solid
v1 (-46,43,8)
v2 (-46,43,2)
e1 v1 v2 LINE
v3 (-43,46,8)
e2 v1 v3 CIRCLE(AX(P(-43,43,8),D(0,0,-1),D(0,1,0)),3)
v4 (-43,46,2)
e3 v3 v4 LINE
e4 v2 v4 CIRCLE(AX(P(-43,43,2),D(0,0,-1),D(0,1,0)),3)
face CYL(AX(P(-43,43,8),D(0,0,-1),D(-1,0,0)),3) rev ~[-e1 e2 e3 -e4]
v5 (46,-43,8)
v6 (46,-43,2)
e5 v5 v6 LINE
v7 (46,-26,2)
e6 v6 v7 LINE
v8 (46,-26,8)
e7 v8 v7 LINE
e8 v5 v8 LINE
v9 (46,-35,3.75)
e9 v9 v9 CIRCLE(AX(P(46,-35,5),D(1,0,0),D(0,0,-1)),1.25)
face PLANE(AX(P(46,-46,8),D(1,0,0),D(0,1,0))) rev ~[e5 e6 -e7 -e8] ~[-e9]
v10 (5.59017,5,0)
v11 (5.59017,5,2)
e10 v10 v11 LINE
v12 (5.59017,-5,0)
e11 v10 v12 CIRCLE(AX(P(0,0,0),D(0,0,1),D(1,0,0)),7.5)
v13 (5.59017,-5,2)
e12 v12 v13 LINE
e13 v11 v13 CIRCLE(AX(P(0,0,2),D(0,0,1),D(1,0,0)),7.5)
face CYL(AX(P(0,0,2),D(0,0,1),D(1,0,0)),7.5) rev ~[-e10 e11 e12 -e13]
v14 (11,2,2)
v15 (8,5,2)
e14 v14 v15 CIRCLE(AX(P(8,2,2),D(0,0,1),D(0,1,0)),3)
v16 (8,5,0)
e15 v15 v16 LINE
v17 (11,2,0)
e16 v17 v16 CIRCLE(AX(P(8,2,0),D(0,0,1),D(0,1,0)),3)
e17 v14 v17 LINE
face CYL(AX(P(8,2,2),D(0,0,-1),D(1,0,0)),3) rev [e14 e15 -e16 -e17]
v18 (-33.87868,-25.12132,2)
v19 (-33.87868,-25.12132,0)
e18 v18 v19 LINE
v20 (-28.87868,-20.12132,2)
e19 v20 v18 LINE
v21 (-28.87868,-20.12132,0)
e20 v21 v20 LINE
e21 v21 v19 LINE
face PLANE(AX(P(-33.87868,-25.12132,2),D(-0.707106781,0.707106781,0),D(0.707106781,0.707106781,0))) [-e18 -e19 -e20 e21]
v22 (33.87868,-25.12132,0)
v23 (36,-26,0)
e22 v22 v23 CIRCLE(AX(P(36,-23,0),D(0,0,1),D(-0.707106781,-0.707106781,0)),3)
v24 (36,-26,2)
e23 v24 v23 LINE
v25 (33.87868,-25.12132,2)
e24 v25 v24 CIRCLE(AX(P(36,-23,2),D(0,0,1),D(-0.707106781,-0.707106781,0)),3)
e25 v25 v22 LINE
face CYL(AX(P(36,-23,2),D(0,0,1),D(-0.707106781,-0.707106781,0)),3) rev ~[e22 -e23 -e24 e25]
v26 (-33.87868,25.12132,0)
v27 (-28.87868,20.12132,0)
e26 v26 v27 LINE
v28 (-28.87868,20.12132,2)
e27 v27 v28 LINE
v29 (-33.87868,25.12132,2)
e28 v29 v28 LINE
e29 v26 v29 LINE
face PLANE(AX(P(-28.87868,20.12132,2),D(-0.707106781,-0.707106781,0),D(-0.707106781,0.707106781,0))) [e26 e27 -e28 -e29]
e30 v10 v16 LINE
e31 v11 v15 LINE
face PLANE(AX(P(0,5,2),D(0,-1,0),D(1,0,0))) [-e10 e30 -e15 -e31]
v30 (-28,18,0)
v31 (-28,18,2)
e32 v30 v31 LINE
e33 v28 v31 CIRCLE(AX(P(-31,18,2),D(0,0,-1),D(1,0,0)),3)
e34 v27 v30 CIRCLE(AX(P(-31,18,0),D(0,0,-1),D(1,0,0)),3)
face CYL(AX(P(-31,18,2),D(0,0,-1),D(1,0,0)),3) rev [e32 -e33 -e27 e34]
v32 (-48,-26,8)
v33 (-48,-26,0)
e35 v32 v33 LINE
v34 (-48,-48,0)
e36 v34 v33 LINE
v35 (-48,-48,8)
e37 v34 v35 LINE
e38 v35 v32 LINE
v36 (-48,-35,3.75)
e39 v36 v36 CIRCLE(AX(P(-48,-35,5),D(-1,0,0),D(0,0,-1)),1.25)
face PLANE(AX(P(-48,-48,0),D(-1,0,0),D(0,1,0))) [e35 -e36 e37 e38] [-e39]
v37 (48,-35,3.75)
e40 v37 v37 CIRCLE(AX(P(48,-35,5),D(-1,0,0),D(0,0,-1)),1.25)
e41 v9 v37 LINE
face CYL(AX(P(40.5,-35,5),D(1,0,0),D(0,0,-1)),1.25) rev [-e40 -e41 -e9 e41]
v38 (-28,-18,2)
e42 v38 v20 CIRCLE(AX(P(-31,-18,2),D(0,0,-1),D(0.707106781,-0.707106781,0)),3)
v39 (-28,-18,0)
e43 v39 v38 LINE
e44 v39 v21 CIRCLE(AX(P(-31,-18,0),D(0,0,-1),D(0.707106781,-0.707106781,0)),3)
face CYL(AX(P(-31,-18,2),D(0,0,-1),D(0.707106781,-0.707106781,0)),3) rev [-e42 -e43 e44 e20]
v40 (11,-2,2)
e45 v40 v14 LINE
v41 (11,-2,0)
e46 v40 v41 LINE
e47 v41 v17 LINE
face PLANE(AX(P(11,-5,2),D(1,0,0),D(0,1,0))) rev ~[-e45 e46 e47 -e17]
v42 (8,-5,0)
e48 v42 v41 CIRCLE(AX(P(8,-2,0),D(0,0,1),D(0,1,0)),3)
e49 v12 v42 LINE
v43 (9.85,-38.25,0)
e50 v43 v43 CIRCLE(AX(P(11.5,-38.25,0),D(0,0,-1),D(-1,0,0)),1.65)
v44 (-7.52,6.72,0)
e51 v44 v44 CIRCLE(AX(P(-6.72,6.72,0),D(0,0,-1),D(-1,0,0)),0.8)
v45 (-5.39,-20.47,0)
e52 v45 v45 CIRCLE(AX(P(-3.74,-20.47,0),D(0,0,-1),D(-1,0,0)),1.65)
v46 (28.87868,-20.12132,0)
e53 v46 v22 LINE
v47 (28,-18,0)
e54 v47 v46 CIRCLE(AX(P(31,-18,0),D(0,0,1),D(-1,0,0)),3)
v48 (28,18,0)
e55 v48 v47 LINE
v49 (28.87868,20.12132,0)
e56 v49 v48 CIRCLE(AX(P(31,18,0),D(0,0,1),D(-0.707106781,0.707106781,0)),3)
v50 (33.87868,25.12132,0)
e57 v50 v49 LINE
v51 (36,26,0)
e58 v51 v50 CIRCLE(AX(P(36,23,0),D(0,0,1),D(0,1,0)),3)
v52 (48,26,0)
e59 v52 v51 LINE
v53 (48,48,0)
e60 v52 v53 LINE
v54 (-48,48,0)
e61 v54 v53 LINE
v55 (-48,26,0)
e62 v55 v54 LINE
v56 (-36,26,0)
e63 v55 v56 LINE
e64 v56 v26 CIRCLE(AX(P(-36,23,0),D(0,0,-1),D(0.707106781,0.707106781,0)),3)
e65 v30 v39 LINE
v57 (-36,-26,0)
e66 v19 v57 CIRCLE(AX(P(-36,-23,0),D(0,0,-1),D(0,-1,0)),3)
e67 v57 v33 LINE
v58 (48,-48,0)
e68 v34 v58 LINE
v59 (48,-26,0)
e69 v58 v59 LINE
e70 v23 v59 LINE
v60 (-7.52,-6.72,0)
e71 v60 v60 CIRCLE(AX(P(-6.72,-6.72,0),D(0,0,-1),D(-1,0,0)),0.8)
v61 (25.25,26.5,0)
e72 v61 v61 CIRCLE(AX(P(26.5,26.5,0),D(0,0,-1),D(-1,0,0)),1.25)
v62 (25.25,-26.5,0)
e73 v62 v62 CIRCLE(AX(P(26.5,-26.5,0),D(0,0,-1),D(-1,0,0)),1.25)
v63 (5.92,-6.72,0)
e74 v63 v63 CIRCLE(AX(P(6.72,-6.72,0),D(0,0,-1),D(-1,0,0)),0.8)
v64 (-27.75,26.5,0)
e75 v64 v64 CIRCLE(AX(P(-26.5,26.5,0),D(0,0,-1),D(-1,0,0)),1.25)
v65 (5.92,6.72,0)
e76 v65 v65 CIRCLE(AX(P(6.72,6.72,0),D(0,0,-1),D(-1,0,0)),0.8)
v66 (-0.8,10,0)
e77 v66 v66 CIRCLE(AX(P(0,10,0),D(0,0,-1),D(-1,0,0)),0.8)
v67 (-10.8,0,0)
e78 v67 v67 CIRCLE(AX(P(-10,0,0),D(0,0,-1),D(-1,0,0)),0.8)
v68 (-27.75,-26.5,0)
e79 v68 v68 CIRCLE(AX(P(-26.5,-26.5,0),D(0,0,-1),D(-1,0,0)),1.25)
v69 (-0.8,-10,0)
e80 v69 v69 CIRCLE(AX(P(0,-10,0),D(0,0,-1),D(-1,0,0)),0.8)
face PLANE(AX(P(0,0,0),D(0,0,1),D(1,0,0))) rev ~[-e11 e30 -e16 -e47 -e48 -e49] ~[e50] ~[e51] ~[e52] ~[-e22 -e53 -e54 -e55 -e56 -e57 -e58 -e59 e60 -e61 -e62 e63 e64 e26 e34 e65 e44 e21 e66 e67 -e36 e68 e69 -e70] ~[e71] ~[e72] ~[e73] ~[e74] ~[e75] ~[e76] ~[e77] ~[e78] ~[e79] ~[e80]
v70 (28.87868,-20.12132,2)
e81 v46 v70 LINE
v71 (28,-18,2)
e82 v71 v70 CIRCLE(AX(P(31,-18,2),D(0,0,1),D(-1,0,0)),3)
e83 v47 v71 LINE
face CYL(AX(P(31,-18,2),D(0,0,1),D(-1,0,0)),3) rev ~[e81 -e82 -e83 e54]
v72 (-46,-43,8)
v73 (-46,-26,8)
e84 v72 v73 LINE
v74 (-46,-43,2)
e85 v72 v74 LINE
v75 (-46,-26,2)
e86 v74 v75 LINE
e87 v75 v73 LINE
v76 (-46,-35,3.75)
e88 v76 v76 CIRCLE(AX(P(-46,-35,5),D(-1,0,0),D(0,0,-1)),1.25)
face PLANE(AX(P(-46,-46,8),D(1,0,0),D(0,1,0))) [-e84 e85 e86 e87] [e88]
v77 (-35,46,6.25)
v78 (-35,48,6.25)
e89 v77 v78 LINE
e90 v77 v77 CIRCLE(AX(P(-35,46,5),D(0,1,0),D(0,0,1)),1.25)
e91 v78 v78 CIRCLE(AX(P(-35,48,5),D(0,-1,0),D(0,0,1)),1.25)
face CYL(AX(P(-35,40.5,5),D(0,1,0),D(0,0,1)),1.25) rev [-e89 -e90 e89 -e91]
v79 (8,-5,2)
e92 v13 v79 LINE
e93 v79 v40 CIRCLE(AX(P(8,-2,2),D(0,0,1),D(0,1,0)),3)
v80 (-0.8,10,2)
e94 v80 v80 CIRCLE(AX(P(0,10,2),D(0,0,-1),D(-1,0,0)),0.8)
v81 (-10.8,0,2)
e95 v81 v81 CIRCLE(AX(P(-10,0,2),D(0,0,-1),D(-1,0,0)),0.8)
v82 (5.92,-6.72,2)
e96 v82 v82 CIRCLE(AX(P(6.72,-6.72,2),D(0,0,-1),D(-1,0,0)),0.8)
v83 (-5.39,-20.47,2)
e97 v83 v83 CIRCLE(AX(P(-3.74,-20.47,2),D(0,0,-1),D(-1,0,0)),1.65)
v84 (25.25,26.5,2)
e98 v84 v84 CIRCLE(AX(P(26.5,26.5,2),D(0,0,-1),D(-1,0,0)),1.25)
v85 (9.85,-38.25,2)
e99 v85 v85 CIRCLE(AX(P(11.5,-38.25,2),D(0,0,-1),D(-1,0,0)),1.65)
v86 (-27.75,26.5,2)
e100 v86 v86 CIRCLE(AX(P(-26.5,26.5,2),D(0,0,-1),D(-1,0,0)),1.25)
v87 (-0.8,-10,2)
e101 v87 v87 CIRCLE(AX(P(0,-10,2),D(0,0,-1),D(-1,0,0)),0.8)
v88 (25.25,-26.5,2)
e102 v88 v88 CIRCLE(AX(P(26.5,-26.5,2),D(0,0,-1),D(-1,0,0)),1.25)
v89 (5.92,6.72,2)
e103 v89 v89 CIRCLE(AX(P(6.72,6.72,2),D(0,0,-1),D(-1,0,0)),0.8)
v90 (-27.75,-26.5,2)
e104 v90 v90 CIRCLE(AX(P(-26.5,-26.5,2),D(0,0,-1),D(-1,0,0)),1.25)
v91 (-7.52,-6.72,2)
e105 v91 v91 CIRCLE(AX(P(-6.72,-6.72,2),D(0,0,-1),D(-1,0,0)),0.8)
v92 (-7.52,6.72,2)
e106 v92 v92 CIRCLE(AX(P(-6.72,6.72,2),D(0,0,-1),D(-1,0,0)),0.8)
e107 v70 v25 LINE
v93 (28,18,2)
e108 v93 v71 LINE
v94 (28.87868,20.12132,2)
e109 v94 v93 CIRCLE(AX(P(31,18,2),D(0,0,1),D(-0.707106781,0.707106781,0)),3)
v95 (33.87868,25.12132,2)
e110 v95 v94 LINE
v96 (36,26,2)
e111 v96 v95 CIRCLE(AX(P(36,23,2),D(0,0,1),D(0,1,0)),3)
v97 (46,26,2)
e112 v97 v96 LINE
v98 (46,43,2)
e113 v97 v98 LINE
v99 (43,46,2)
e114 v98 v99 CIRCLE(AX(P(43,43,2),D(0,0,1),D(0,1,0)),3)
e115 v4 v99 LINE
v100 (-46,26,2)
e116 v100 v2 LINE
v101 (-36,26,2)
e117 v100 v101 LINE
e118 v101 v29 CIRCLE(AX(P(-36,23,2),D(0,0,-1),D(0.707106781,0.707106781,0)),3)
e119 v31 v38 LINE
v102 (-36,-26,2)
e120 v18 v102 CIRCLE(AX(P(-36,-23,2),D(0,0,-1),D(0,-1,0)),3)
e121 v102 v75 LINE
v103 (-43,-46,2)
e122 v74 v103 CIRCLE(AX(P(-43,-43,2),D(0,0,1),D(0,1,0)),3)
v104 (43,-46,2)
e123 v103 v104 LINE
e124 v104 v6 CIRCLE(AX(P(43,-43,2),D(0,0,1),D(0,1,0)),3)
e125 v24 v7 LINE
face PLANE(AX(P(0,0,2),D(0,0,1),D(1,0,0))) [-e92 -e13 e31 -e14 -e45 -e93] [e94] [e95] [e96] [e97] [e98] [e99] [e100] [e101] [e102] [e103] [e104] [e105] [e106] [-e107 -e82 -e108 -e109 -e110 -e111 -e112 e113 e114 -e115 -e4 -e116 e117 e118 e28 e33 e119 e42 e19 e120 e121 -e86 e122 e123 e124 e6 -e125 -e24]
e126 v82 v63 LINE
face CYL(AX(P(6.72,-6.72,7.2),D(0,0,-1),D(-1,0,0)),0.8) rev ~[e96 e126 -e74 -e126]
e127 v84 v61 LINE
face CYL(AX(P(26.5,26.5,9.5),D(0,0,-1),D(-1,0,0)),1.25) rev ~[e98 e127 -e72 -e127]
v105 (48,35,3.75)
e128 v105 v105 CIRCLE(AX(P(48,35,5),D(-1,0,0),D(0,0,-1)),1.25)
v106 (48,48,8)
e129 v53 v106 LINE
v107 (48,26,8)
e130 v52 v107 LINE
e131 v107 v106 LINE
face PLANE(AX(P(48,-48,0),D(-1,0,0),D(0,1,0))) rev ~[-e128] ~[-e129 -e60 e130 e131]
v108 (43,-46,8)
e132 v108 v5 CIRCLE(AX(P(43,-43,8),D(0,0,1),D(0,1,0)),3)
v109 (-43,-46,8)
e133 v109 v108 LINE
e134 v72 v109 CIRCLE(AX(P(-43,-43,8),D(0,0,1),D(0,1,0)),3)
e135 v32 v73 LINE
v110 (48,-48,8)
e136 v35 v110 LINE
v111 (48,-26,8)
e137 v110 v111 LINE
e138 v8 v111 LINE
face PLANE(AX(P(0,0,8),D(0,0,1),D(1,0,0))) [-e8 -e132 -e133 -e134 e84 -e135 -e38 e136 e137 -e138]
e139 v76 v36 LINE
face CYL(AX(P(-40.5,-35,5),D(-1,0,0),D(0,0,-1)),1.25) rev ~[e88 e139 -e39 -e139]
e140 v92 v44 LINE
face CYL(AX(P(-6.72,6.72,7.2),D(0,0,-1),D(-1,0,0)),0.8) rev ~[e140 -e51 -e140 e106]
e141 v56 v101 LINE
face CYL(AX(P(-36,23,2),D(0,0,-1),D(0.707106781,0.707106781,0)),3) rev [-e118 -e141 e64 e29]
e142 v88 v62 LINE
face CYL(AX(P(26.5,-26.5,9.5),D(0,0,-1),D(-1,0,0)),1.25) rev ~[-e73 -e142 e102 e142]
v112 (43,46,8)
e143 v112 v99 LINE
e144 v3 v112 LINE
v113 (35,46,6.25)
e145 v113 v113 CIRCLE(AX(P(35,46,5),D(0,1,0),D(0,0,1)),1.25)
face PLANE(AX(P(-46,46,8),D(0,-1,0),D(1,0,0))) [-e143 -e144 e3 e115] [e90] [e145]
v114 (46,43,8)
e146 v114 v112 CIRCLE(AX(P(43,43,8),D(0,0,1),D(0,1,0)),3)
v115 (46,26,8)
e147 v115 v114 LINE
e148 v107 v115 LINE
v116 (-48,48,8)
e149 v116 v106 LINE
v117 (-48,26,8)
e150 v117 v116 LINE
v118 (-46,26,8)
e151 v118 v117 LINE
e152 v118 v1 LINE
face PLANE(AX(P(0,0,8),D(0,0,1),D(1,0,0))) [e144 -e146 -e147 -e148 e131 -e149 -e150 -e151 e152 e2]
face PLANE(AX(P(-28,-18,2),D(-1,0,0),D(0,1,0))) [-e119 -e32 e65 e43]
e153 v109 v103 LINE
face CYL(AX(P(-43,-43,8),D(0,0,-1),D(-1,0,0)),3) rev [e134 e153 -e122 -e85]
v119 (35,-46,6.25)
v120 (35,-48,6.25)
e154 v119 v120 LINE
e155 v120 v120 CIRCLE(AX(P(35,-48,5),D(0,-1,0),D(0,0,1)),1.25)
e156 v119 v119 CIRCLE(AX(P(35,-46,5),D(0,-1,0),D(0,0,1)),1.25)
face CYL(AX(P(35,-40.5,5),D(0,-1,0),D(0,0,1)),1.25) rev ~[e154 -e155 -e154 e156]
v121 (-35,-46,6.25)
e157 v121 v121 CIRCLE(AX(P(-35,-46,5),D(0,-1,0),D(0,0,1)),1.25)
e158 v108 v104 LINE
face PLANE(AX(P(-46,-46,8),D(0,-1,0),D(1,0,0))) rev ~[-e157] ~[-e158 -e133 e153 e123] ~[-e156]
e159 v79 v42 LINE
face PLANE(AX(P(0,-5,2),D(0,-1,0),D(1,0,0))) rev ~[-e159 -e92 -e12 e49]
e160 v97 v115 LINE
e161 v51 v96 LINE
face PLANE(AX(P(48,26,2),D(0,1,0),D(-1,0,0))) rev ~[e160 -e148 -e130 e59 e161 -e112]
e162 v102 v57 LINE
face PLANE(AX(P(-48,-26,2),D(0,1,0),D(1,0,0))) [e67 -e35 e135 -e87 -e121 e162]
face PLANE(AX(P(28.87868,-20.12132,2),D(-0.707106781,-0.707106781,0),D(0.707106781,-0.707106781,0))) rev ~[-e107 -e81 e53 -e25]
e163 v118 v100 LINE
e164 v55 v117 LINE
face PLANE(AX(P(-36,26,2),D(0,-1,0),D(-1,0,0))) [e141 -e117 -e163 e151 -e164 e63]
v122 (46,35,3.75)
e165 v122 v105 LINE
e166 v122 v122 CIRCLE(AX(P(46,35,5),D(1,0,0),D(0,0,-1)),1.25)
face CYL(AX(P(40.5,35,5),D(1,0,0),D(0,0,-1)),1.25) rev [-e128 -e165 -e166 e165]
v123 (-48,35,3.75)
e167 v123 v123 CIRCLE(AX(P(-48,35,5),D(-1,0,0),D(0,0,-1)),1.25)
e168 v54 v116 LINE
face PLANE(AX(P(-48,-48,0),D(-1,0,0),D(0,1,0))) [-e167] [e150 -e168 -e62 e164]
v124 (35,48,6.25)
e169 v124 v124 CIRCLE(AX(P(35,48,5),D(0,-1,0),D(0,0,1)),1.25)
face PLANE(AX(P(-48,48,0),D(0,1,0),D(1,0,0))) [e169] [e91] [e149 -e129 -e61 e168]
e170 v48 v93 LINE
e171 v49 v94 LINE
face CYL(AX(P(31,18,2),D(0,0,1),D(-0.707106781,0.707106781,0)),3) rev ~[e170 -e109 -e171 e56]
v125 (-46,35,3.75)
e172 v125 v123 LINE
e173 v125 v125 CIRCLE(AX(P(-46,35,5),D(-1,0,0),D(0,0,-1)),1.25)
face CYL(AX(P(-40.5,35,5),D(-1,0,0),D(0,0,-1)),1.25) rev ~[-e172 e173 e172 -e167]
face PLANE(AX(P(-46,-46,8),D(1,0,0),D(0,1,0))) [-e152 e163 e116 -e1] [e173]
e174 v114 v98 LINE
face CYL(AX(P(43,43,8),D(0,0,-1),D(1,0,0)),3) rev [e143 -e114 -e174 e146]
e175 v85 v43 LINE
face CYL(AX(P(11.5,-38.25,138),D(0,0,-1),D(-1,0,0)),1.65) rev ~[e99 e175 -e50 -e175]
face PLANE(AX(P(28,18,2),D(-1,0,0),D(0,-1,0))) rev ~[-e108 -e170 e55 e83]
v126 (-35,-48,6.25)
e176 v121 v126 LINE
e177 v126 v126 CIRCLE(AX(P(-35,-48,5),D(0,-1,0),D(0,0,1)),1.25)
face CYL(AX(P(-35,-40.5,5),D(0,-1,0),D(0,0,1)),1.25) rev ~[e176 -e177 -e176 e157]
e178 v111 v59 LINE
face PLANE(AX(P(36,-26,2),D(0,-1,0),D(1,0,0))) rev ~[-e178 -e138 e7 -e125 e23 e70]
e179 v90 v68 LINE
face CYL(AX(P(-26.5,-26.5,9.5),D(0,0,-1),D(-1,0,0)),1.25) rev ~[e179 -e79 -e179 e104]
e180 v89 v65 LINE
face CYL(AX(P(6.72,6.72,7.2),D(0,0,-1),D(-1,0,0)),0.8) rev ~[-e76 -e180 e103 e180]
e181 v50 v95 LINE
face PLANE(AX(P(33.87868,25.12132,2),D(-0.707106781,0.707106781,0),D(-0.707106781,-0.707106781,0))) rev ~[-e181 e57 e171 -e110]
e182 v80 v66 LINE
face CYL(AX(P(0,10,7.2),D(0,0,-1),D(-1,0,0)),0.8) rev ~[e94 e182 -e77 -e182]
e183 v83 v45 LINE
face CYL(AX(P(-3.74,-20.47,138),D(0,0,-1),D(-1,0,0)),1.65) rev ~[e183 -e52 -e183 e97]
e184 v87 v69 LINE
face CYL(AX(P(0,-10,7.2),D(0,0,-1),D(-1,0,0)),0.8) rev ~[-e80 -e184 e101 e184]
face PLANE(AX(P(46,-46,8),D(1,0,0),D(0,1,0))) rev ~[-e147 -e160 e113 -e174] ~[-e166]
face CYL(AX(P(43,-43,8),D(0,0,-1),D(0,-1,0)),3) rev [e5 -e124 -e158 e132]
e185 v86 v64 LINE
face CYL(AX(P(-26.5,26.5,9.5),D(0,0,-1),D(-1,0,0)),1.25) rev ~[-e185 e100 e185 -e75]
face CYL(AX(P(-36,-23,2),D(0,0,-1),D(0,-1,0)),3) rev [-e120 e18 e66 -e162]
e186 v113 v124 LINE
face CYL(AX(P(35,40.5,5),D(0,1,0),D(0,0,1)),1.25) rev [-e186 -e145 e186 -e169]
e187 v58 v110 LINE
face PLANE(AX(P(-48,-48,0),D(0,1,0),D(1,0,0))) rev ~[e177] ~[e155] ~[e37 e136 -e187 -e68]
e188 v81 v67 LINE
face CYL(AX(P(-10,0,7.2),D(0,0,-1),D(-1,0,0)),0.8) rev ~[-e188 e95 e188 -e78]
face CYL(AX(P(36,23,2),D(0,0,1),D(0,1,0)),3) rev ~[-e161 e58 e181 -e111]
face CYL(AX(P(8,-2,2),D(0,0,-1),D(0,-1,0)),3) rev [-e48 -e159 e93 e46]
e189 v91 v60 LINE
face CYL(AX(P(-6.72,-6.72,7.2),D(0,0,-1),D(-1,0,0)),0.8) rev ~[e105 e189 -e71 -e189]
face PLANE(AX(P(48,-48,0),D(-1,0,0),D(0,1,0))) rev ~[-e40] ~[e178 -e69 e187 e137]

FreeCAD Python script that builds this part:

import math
import FreeCAD as App
import Part
import Sketcher
from FreeCAD import Vector
Q = App.Units.Quantity


def edges_at(feature, points):
    """Names of the edges that pass closest to the given points."""
    edges = feature.Shape.Edges
    near = lambda p: min(range(len(edges)), key=lambda i: edges[i].distToShape(Part.Vertex(*p))[0])
    return sorted({f"Edge{near(p) + 1}" for p in points})

doc = App.newDocument("Part")
body = doc.addObject("PartDesign::Body", "Body")

sketch1 = doc.addObject("Sketcher::SketchObject", "Sketch")
body.addObject(sketch1)
sketch1.AttachmentSupport = (doc.XY_Plane, [""])
sketch1.MapMode = "FlatFace"
sketch1.addGeometry([
    Part.LineSegment(Vector(-48, 48, 0), Vector(-48, -48, 0)),
    Part.LineSegment(Vector(-48, -48, 0), Vector(48, -48, 0)),
    Part.LineSegment(Vector(48, -48, 0), Vector(48, 48, 0)),
    Part.LineSegment(Vector(48, 48, 0), Vector(-48, 48, 0)),
], False)
sketch1.addConstraint([
    Sketcher.Constraint("Coincident", 0, 2, 1, 1),
    Sketcher.Constraint("Coincident", 1, 2, 2, 1),
    Sketcher.Constraint("Coincident", 2, 2, 3, 1),
    Sketcher.Constraint("Coincident", 3, 2, 0, 1),
    Sketcher.Constraint("Vertical", 0),
    Sketcher.Constraint("Horizontal", 1),
    Sketcher.Constraint("Vertical", 2),
    Sketcher.Constraint("Horizontal", 3),
    Sketcher.Constraint("Symmetric", 0, 2, 2, 2, -1, 1),
    Sketcher.Constraint("Equal", 3, 0),
    Sketcher.Constraint("DistanceX", 1, 1, 1, 2, 96.0),
])
pad1 = doc.addObject("PartDesign::Pad", "Pad")
body.addObject(pad1)
pad1.Profile = sketch1
pad1.Length = 8

sketch2 = doc.addObject("Sketcher::SketchObject", "Sketch001")
body.addObject(sketch2)
sketch2.AttachmentSupport = (doc.XY_Plane, [""])
sketch2.MapMode = "FlatFace"
sketch2.AttachmentOffset = App.Placement(Vector(0, 0, 8), App.Rotation())
sketch2.addGeometry([
    Part.LineSegment(Vector(-46, 46, 0), Vector(-46, -46, 0)),
    Part.LineSegment(Vector(-46, -46, 0), Vector(46, -46, 0)),
    Part.LineSegment(Vector(46, -46, 0), Vector(46, 46, 0)),
    Part.LineSegment(Vector(46, 46, 0), Vector(-46, 46, 0)),
], False)
sketch2.addConstraint([
    Sketcher.Constraint("Coincident", 0, 2, 1, 1),
    Sketcher.Constraint("Coincident", 1, 2, 2, 1),
    Sketcher.Constraint("Coincident", 2, 2, 3, 1),
    Sketcher.Constraint("Coincident", 3, 2, 0, 1),
    Sketcher.Constraint("Vertical", 0),
    Sketcher.Constraint("Horizontal", 1),
    Sketcher.Constraint("Vertical", 2),
    Sketcher.Constraint("Horizontal", 3),
    Sketcher.Constraint("Symmetric", 0, 2, 2, 2, -1, 1),
    Sketcher.Constraint("Equal", 3, 0),
    Sketcher.Constraint("DistanceX", 1, 1, 1, 2, 92.0),
])
pocket1 = doc.addObject("PartDesign::Pocket", "Pocket")
body.addObject(pocket1)
pocket1.Profile = sketch2
pocket1.Length = 6

sketch3 = doc.addObject("Sketcher::SketchObject", "Sketch002")
body.addObject(sketch3)
sketch3.AttachmentSupport = (doc.XY_Plane, [""])
sketch3.MapMode = "FlatFace"
sketch3.AttachmentOffset = App.Placement(Vector(0, 0, 2), App.Rotation())
sketch3.addGeometry([
    Part.LineSegment(Vector(-33.87868, -25.12132, 0), Vector(-28.87868, -20.12132, 0)),
    Part.ArcOfCircle(Part.Circle(Vector(-31, -18, 0), Vector(0, 0, 1), 3), math.radians(-45), math.radians(0)),
    Part.LineSegment(Vector(-28, -18, 0), Vector(-28, 18, 0)),
    Part.ArcOfCircle(Part.Circle(Vector(-31, 18, 0), Vector(0, 0, 1), 3), math.radians(0), math.radians(45)),
    Part.LineSegment(Vector(-28.87868, 20.12132, 0), Vector(-33.87868, 25.12132, 0)),
    Part.ArcOfCircle(Part.Circle(Vector(-36, 23, 0), Vector(0, 0, 1), 3), math.radians(45), math.radians(90)),
    Part.LineSegment(Vector(-36, 26, 0), Vector(-48, 26, 0)),
    Part.LineSegment(Vector(-48, 26, 0), Vector(-48, -26, 0)),
    Part.LineSegment(Vector(-48, -26, 0), Vector(-36, -26, 0)),
    Part.ArcOfCircle(Part.Circle(Vector(-36, -23, 0), Vector(0, 0, 1), 3), math.radians(-90), math.radians(-45)),
    Part.LineSegment(Vector(48, -26, 0), Vector(48, 26, 0)),
    Part.LineSegment(Vector(48, 26, 0), Vector(36, 26, 0)),
    Part.ArcOfCircle(Part.Circle(Vector(36, 23, 0), Vector(0, 0, 1), 3), math.radians(90), math.radians(135)),
    Part.LineSegment(Vector(33.87868, 25.12132, 0), Vector(28.87868, 20.12132, 0)),
    Part.ArcOfCircle(Part.Circle(Vector(31, 18, 0), Vector(0, 0, 1), 3), math.radians(135), math.radians(180)),
    Part.LineSegment(Vector(28, 18, 0), Vector(28, -18, 0)),
    Part.ArcOfCircle(Part.Circle(Vector(31, -18, 0), Vector(0, 0, 1), 3), math.radians(180), math.radians(225)),
    Part.LineSegment(Vector(28.87868, -20.12132, 0), Vector(33.87868, -25.12132, 0)),
    Part.ArcOfCircle(Part.Circle(Vector(36, -23, 0), Vector(0, 0, 1), 3), math.radians(-135), math.radians(-90)),
    Part.LineSegment(Vector(36, -26, 0), Vector(48, -26, 0)),
], False)
sketch3.addConstraint([
    Sketcher.Constraint("Tangent", 0, 2, 1, 1),
    Sketcher.Constraint("Tangent", 1, 2, 2, 1),
    Sketcher.Constraint("Tangent", 2, 2, 3, 1),
    Sketcher.Constraint("Tangent", 3, 2, 4, 1),
    Sketcher.Constraint("Tangent", 4, 2, 5, 1),
    Sketcher.Constraint("Tangent", 5, 2, 6, 1),
    Sketcher.Constraint("Coincident", 6, 2, 7, 1),
    Sketcher.Constraint("Coincident", 7, 2, 8, 1),
    Sketcher.Constraint("Tangent", 8, 2, 9, 1),
    Sketcher.Constraint("Tangent", 9, 2, 0, 1),
    Sketcher.Constraint("Coincident", 10, 2, 11, 1),
    Sketcher.Constraint("Tangent", 11, 2, 12, 1),
    Sketcher.Constraint("Tangent", 12, 2, 13, 1),
    Sketcher.Constraint("Tangent", 13, 2, 14, 1),
    Sketcher.Constraint("Tangent", 14, 2, 15, 1),
    Sketcher.Constraint("Tangent", 15, 2, 16, 1),
    Sketcher.Constraint("Tangent", 16, 2, 17, 1),
    Sketcher.Constraint("Tangent", 17, 2, 18, 1),
    Sketcher.Constraint("Tangent", 18, 2, 19, 1),
    Sketcher.Constraint("Coincident", 19, 2, 10, 1),
    Sketcher.Constraint("Vertical", 2),
    Sketcher.Constraint("Horizontal", 6),
    Sketcher.Constraint("Vertical", 7),
    Sketcher.Constraint("Horizontal", 8),
    Sketcher.Constraint("Vertical", 10),
    Sketcher.Constraint("Horizontal", 11),
    Sketcher.Constraint("Vertical", 15),
    Sketcher.Constraint("Horizontal", 19),
    Sketcher.Constraint("Equal", 1, 3),
    Sketcher.Constraint("Equal", 3, 5),
    Sketcher.Constraint("Equal", 5, 9),
    Sketcher.Constraint("Equal", 9, 12),
    Sketcher.Constraint("Equal", 12, 14),
    Sketcher.Constraint("Equal", 14, 16),
    Sketcher.Constraint("Equal", 16, 18),
    Sketcher.Constraint("Symmetric", 9, 3, 12, 3, -1, 1),
    Sketcher.Constraint("Symmetric", 1, 3, 14, 3, -1, 1),
    Sketcher.Constraint("Symmetric", 5, 3, 18, 3, -1, 1),
    Sketcher.Constraint("Symmetric", 5, 3, 12, 3, -2),
    Sketcher.Constraint("Perpendicular", 0, 4),
    Sketcher.Constraint("Perpendicular", 13, 17),
    Sketcher.Constraint("Horizontal", 3, 3, 14, 3),
    Sketcher.Constraint("Equal", 8, 11),
    Sketcher.Constraint("Radius", 1, 3.0),
    Sketcher.Constraint("DistanceX", 6, 2, 6, 1, 12.0),
    Sketcher.Constraint("DistanceY", 2, 1, 2, 2, 36.0),
    Sketcher.Constraint("DistanceY", 7, 2, 7, 1, 52.0),
    Sketcher.Constraint("DistanceX", 1, 3, -1, 1, 31.0),
])
pocket2 = doc.addObject("PartDesign::Pocket", "Pocket001")
body.addObject(pocket2)
pocket2.Profile = sketch3
pocket2.Length = 12
pocket2.Midplane = True

sketch4 = doc.addObject("Sketcher::SketchObject", "Sketch003")
body.addObject(sketch4)
sketch4.AttachmentSupport = (doc.XY_Plane, [""])
sketch4.MapMode = "FlatFace"
sketch4.AttachmentOffset = App.Placement(Vector(0, 0, 2), App.Rotation())
sketch4.addGeometry(Part.Circle(Vector(0, 0, 0), Vector(0, 0, 1), 7.5), False)
sketch4.addConstraint([
    Sketcher.Constraint("Coincident", 0, 3, -1, 1),
    Sketcher.Constraint("Diameter", 0, 15.0),
])
pocket3 = doc.addObject("PartDesign::Pocket", "Pocket002")
body.addObject(pocket3)
pocket3.Profile = sketch4
pocket3.Length = 6
doc.recompute()

fillet = doc.addObject("PartDesign::Fillet", "Fillet")
body.addObject(fillet)
fillet.Base = (pocket3, edges_at(pocket3, [
    (-46, -46, 5),
    (-46, 46, 5),
    (46, 46, 5),
    (46, -46, 5),
]))
fillet.Radius = 3

sketch5 = doc.addObject("Sketcher::SketchObject", "Sketch004")
body.addObject(sketch5)
sketch5.AttachmentSupport = (doc.XY_Plane, [""])
sketch5.MapMode = "FlatFace"
sketch5.AttachmentOffset = App.Placement(Vector(0, 0, 2), App.Rotation())
sketch5.addGeometry([
    Part.LineSegment(Vector(0, 5, 0), Vector(0, -5, 0)),
    Part.LineSegment(Vector(0, -5, 0), Vector(11, -5, 0)),
    Part.LineSegment(Vector(11, -5, 0), Vector(11, 5, 0)),
    Part.LineSegment(Vector(11, 5, 0), Vector(0, 5, 0)),
], False)
sketch5.addConstraint([
    Sketcher.Constraint("Coincident", 0, 2, 1, 1),
    Sketcher.Constraint("Coincident", 1, 2, 2, 1),
    Sketcher.Constraint("Coincident", 2, 2, 3, 1),
    Sketcher.Constraint("Coincident", 3, 2, 0, 1),
    Sketcher.Constraint("Vertical", 0),
    Sketcher.Constraint("Horizontal", 1),
    Sketcher.Constraint("Vertical", 2),
    Sketcher.Constraint("Horizontal", 3),
    Sketcher.Constraint("Symmetric", 0, 2, 3, 2, -1, 1),
    Sketcher.Constraint("DistanceX", 1, 1, 1, 2, 11.0),
    Sketcher.Constraint("DistanceY", 0, 2, 0, 1, 10.0),
])
pocket4 = doc.addObject("PartDesign::Pocket", "Pocket003")
body.addObject(pocket4)
pocket4.Profile = sketch5
pocket4.Length = 2
doc.recompute()

fillet2 = doc.addObject("PartDesign::Fillet", "Fillet001")
body.addObject(fillet2)
fillet2.Base = (pocket4, edges_at(pocket4, [(11, -5, 1), (11, 5, 1)]))
fillet2.Radius = 3

sketch6 = doc.addObject("Sketcher::SketchObject", "Sketch005")
body.addObject(sketch6)
sketch6.AttachmentSupport = (doc.XZ_Plane, [""])
sketch6.MapMode = "FlatFace"
sketch6.AttachmentOffset = App.Placement(Vector(0, 0, 35), App.Rotation())
sketch6.addGeometry([
    Part.LineSegment(Vector(39.748924, 5, 0), Vector(48, 5, 0)),
    Part.LineSegment(Vector(48, 5, 0), Vector(48, 3.75, 0)),
    Part.LineSegment(Vector(48, 3.75, 0), Vector(40.5, 3.75, 0)),
    Part.LineSegment(Vector(40.5, 3.75, 0), Vector(39.748924, 5, 0)),
], False)
sketch6.addGeometry(Part.LineSegment(Vector(48, 5, 0), Vector(39.748924, 5, 0)), True)
sketch6.addConstraint([
    Sketcher.Constraint("Coincident", 0, 2, 1, 1),
    Sketcher.Constraint("Coincident", 1, 2, 2, 1),
    Sketcher.Constraint("Coincident", 2, 2, 3, 1),
    Sketcher.Constraint("Coincident", 3, 2, 0, 1),
    Sketcher.Constraint("Horizontal", 0),
    Sketcher.Constraint("Vertical", 1),
    Sketcher.Constraint("Horizontal", 2),
    Sketcher.Constraint("Horizontal", 4),
    Sketcher.Constraint("Coincident", 4, 1, 0, 2),
    Sketcher.Constraint("Equal", 0, 4),
    Sketcher.Constraint("Angle", 3, Q("121 deg")),
    Sketcher.Constraint("DistanceX", 2, 2, 2, 1, 7.5),
    Sketcher.Constraint("DistanceX", -1, 1, 0, 2, 48.0),
    Sketcher.Constraint("DistanceY", -1, 1, 0, 2, 5.0),
    Sketcher.Constraint("DistanceY", 1, 2, 1, 1, 1.25),
])
groove = doc.addObject("PartDesign::Groove", "Groove")
body.addObject(groove)
groove.Profile = sketch6
groove.ReferenceAxis = (sketch6, ["Axis0"])
groove.Angle = 360
doc.recompute()

linearpattern = doc.addObject("PartDesign::LinearPattern", "LinearPattern")
body.addObject(linearpattern)
linearpattern.Originals = [groove]
linearpattern.Direction = (doc.Y_Axis, [""])
linearpattern.Mode = "offset"
linearpattern.Offset = 70
linearpattern.Occurrences = 2
body.Tip = linearpattern

sketch7 = doc.addObject("Sketcher::SketchObject", "Sketch006")
body.addObject(sketch7)
sketch7.AttachmentSupport = (doc.YZ_Plane, [""])
sketch7.MapMode = "FlatFace"
sketch7.AttachmentOffset = App.Placement(Vector(0, 0, 35), App.Rotation())
sketch7.addGeometry([
    Part.LineSegment(Vector(39.748924, 5, 0), Vector(48, 5, 0)),
    Part.LineSegment(Vector(48, 5, 0), Vector(48, 6.25, 0)),
    Part.LineSegment(Vector(48, 6.25, 0), Vector(40.5, 6.25, 0)),
    Part.LineSegment(Vector(40.5, 6.25, 0), Vector(39.748924, 5, 0)),
], False)
sketch7.addGeometry(Part.LineSegment(Vector(48, 5, 0), Vector(39.748924, 5, 0)), True)
sketch7.addConstraint([
    Sketcher.Constraint("Coincident", 0, 2, 1, 1),
    Sketcher.Constraint("Coincident", 1, 2, 2, 1),
    Sketcher.Constraint("Coincident", 2, 2, 3, 1),
    Sketcher.Constraint("Coincident", 3, 2, 0, 1),
    Sketcher.Constraint("Horizontal", 0),
    Sketcher.Constraint("Vertical", 1),
    Sketcher.Constraint("Horizontal", 2),
    Sketcher.Constraint("Horizontal", 4),
    Sketcher.Constraint("Coincident", 4, 1, 0, 2),
    Sketcher.Constraint("Equal", 0, 4),
    Sketcher.Constraint("Angle", 3, Q("-121 deg")),
    Sketcher.Constraint("DistanceX", 2, 2, 2, 1, 7.5),
    Sketcher.Constraint("DistanceX", -1, 1, 0, 2, 48.0),
    Sketcher.Constraint("DistanceY", -1, 1, 0, 2, 5.0),
    Sketcher.Constraint("DistanceY", 1, 1, 1, 2, 1.25),
])
groove2 = doc.addObject("PartDesign::Groove", "Groove001")
body.addObject(groove2)
groove2.Profile = sketch7
groove2.ReferenceAxis = (sketch7, ["Axis0"])
groove2.Angle = 360
doc.recompute()

linearpattern2 = doc.addObject("PartDesign::LinearPattern", "LinearPattern001")
body.addObject(linearpattern2)
linearpattern2.Originals = [groove2]
linearpattern2.Direction = (doc.X_Axis, [""])
linearpattern2.Mode = "offset"
linearpattern2.Offset = 70
linearpattern2.Occurrences = 2
linearpattern2.Reversed = True
body.Tip = linearpattern2
doc.recompute()

mirrored = doc.addObject("PartDesign::Mirrored", "Mirrored")
body.addObject(mirrored)
mirrored.Originals = [groove]
mirrored.MirrorPlane = (doc.YZ_Plane, [""])
body.Tip = mirrored

sketch8 = doc.addObject("Sketcher::SketchObject", "Sketch007")
body.addObject(sketch8)
sketch8.AttachmentSupport = (doc.XZ_Plane, [""])
sketch8.MapMode = "FlatFace"
sketch8.AttachmentOffset = App.Placement(Vector(0, 0, -35), App.Rotation())
sketch8.addGeometry([
    Part.LineSegment(Vector(-48, 5, 0), Vector(-39.748924, 5, 0)),
    Part.LineSegment(Vector(-39.748924, 5, 0), Vector(-40.5, 3.75, 0)),
    Part.LineSegment(Vector(-40.5, 3.75, 0), Vector(-48, 3.75, 0)),
    Part.LineSegment(Vector(-48, 3.75, 0), Vector(-48, 5, 0)),
], False)
sketch8.addGeometry(Part.LineSegment(Vector(-39.748924, 5, 0), Vector(-48, 5, 0)), True)
sketch8.addConstraint([
    Sketcher.Constraint("Coincident", 0, 2, 1, 1),
    Sketcher.Constraint("Coincident", 1, 2, 2, 1),
    Sketcher.Constraint("Coincident", 2, 2, 3, 1),
    Sketcher.Constraint("Coincident", 3, 2, 0, 1),
    Sketcher.Constraint("Horizontal", 0),
    Sketcher.Constraint("Horizontal", 2),
    Sketcher.Constraint("Vertical", 3),
    Sketcher.Constraint("Horizontal", 4),
    Sketcher.Constraint("Coincident", 4, 1, 0, 2),
    Sketcher.Constraint("Vertical", 2, 2, 4, 2),
    Sketcher.Constraint("Angle", 1, Q("-121 deg")),
    Sketcher.Constraint("DistanceX", 2, 2, 2, 1, 7.5),
    Sketcher.Constraint("DistanceY", -1, 1, 0, 2, 5.0),
    Sketcher.Constraint("DistanceX", 2, 2, -1, 1, 48.0),
    Sketcher.Constraint("DistanceY", 3, 1, 3, 2, 1.25),
])
groove3 = doc.addObject("PartDesign::Groove", "Groove002")
body.addObject(groove3)
groove3.Profile = sketch8
groove3.ReferenceAxis = (sketch8, ["Axis0"])
groove3.Angle = 360
doc.recompute()

mirrored2 = doc.addObject("PartDesign::Mirrored", "Mirrored001")
body.addObject(mirrored2)
mirrored2.Originals = [groove2]
mirrored2.MirrorPlane = (doc.XZ_Plane, [""])
body.Tip = mirrored2

sketch9 = doc.addObject("Sketcher::SketchObject", "Sketch008")
body.addObject(sketch9)
sketch9.AttachmentSupport = (doc.YZ_Plane, [""])
sketch9.MapMode = "FlatFace"
sketch9.AttachmentOffset = App.Placement(Vector(0, 0, -35), App.Rotation())
sketch9.addGeometry([
    Part.LineSegment(Vector(-48, 5, 0), Vector(-39.748924, 5, 0)),
    Part.LineSegment(Vector(-39.748924, 5, 0), Vector(-40.5, 6.25, 0)),
    Part.LineSegment(Vector(-40.5, 6.25, 0), Vector(-48, 6.25, 0)),
    Part.LineSegment(Vector(-48, 6.25, 0), Vector(-48, 5, 0)),
], False)
sketch9.addGeometry(Part.LineSegment(Vector(-39.748924, 5, 0), Vector(-48, 5, 0)), True)
sketch9.addConstraint([
    Sketcher.Constraint("Coincident", 0, 2, 1, 1),
    Sketcher.Constraint("Coincident", 1, 2, 2, 1),
    Sketcher.Constraint("Coincident", 2, 2, 3, 1),
    Sketcher.Constraint("Coincident", 3, 2, 0, 1),
    Sketcher.Constraint("Horizontal", 0),
    Sketcher.Constraint("Horizontal", 2),
    Sketcher.Constraint("Vertical", 3),
    Sketcher.Constraint("Horizontal", 4),
    Sketcher.Constraint("Coincident", 4, 1, 0, 2),
    Sketcher.Constraint("Vertical", 2, 2, 4, 2),
    Sketcher.Constraint("Angle", 1, Q("121 deg")),
    Sketcher.Constraint("DistanceX", 2, 2, 2, 1, 7.5),
    Sketcher.Constraint("DistanceY", -1, 1, 0, 2, 5.0),
    Sketcher.Constraint("DistanceX", 2, 2, -1, 1, 48.0),
    Sketcher.Constraint("DistanceY", 3, 2, 3, 1, 1.25),
])
groove4 = doc.addObject("PartDesign::Groove", "Groove003")
body.addObject(groove4)
groove4.Profile = sketch9
groove4.ReferenceAxis = (sketch9, ["Axis0"])
groove4.Angle = 360

sketch10 = doc.addObject("Sketcher::SketchObject", "Sketch009")
body.addObject(sketch10)
sketch10.AttachmentSupport = (doc.XY_Plane, [""])
sketch10.MapMode = "FlatFace"
sketch10.AttachmentOffset = App.Placement(Vector(0, 0, 2), App.Rotation())
sketch10.addGeometry([
    Part.Circle(Vector(-26.5, -26.5, 0), Vector(0, 0, 1), 1.25),
    Part.Circle(Vector(26.5, -26.5, 0), Vector(0, 0, 1), 1.25),
    Part.Circle(Vector(26.5, 26.5, 0), Vector(0, 0, 1), 1.25),
    Part.Circle(Vector(-26.5, 26.5, 0), Vector(0, 0, 1), 1.25),
], False)
sketch10.addConstraint([
    Sketcher.Constraint("Equal", 0, 1),
    Sketcher.Constraint("Equal", 1, 2),
    Sketcher.Constraint("Equal", 2, 3),
    Sketcher.Constraint("Symmetric", 0, 3, 2, 3, -1, 1),
    Sketcher.Constraint("Symmetric", 1, 3, 3, 3, -1, 1),
    Sketcher.Constraint("Symmetric", 0, 3, 1, 3, -2),
    Sketcher.Constraint("Diameter", 0, 2.5),
    Sketcher.Constraint("DistanceX", 0, 3, 1, 3, 53.0),
    Sketcher.Constraint("DistanceY", 1, 3, 2, 3, 53.0),
])
doc.recompute()
hole = doc.addObject("PartDesign::Hole", "Hole")
body.addObject(hole)
hole.Profile = sketch10
hole.ThreadType = "None"
hole.Diameter = 2.5
hole.DepthType = "Dimension"
hole.Depth = 7.5
hole.DrillPoint = "Angled"
hole.DrillPointAngle = 118

sketch11 = doc.addObject("Sketcher::SketchObject", "Sketch010")
body.addObject(sketch11)
sketch11.AttachmentSupport = (doc.XY_Plane, [""])
sketch11.MapMode = "FlatFace"
sketch11.AttachmentOffset = App.Placement(Vector(0, 0, 2), App.Rotation())
sketch11.addGeometry([
    Part.Circle(Vector(6.72, -6.72, 0), Vector(0, 0, 1), 0.8),
    Part.Circle(Vector(0, -10, 0), Vector(0, 0, 1), 0.8),
    Part.Circle(Vector(-6.72, -6.72, 0), Vector(0, 0, 1), 0.8),
    Part.Circle(Vector(-10, 0, 0), Vector(0, 0, 1), 0.8),
    Part.Circle(Vector(-6.72, 6.72, 0), Vector(0, 0, 1), 0.8),
    Part.Circle(Vector(0, 10, 0), Vector(0, 0, 1), 0.8),
    Part.Circle(Vector(6.72, 6.72, 0), Vector(0, 0, 1), 0.8),
], False)
sketch11.addConstraint([
    Sketcher.Constraint("Equal", 0, 1),
    Sketcher.Constraint("Equal", 1, 2),
    Sketcher.Constraint("Equal", 2, 3),
    Sketcher.Constraint("Equal", 3, 4),
    Sketcher.Constraint("Equal", 4, 5),
    Sketcher.Constraint("Equal", 5, 6),
    Sketcher.Constraint("Symmetric", 0, 3, 4, 3, -1, 1),
    Sketcher.Constraint("Symmetric", 1, 3, 5, 3, -1, 1),
    Sketcher.Constraint("Symmetric", 2, 3, 6, 3, -1, 1),
    Sketcher.Constraint("Symmetric", 0, 3, 2, 3, -2),
    Sketcher.Constraint("PointOnObject", 1, 3, -2),
    Sketcher.Constraint("PointOnObject", 3, 3, -1),
    Sketcher.Constraint("Diameter", 0, 1.6),
    Sketcher.Constraint("DistanceY", 1, 3, -1, 1, 10.0),
    Sketcher.Constraint("DistanceX", 3, 3, -1, 1, 10.0),
    Sketcher.Constraint("DistanceX", -1, 1, 0, 3, 6.72),
    Sketcher.Constraint("DistanceY", 0, 3, -1, 1, 6.72),
])
doc.recompute()
hole2 = doc.addObject("PartDesign::Hole", "Hole001")
body.addObject(hole2)
hole2.Profile = sketch11
hole2.ThreadType = "None"
hole2.Diameter = 1.6
hole2.DepthType = "Dimension"
hole2.Depth = 5.2
hole2.DrillPoint = "Angled"
hole2.DrillPointAngle = 118

sketch12 = doc.addObject("Sketcher::SketchObject", "Sketch011")
body.addObject(sketch12)
sketch12.AttachmentSupport = (doc.XY_Plane, [""])
sketch12.MapMode = "FlatFace"
sketch12.AttachmentOffset = App.Placement(Vector(0, 0, 2), App.Rotation())
sketch12.addGeometry([
    Part.Circle(Vector(-3.74, -20.47, 0), Vector(0, 0, 1), 1.65),
    Part.Circle(Vector(11.5, -38.25, 0), Vector(0, 0, 1), 1.65),
], False)
sketch12.addConstraint([
    Sketcher.Constraint("Equal", 0, 1),
    Sketcher.Constraint("Diameter", 0, 3.3),
    Sketcher.Constraint("DistanceX", -1, 1, 1, 3, 11.5),
    Sketcher.Constraint("DistanceX", 0, 3, -1, 1, 3.74),
    Sketcher.Constraint("DistanceY", 0, 3, -1, 1, 20.47),
    Sketcher.Constraint("DistanceY", 1, 3, -1, 1, 38.25),
])
doc.recompute()
hole3 = doc.addObject("PartDesign::Hole", "Hole002")
body.addObject(hole3)
hole3.Profile = sketch12
hole3.ThreadType = "None"
hole3.Diameter = 3.3
hole3.DepthType = "ThroughAll"

doc.recompute()
